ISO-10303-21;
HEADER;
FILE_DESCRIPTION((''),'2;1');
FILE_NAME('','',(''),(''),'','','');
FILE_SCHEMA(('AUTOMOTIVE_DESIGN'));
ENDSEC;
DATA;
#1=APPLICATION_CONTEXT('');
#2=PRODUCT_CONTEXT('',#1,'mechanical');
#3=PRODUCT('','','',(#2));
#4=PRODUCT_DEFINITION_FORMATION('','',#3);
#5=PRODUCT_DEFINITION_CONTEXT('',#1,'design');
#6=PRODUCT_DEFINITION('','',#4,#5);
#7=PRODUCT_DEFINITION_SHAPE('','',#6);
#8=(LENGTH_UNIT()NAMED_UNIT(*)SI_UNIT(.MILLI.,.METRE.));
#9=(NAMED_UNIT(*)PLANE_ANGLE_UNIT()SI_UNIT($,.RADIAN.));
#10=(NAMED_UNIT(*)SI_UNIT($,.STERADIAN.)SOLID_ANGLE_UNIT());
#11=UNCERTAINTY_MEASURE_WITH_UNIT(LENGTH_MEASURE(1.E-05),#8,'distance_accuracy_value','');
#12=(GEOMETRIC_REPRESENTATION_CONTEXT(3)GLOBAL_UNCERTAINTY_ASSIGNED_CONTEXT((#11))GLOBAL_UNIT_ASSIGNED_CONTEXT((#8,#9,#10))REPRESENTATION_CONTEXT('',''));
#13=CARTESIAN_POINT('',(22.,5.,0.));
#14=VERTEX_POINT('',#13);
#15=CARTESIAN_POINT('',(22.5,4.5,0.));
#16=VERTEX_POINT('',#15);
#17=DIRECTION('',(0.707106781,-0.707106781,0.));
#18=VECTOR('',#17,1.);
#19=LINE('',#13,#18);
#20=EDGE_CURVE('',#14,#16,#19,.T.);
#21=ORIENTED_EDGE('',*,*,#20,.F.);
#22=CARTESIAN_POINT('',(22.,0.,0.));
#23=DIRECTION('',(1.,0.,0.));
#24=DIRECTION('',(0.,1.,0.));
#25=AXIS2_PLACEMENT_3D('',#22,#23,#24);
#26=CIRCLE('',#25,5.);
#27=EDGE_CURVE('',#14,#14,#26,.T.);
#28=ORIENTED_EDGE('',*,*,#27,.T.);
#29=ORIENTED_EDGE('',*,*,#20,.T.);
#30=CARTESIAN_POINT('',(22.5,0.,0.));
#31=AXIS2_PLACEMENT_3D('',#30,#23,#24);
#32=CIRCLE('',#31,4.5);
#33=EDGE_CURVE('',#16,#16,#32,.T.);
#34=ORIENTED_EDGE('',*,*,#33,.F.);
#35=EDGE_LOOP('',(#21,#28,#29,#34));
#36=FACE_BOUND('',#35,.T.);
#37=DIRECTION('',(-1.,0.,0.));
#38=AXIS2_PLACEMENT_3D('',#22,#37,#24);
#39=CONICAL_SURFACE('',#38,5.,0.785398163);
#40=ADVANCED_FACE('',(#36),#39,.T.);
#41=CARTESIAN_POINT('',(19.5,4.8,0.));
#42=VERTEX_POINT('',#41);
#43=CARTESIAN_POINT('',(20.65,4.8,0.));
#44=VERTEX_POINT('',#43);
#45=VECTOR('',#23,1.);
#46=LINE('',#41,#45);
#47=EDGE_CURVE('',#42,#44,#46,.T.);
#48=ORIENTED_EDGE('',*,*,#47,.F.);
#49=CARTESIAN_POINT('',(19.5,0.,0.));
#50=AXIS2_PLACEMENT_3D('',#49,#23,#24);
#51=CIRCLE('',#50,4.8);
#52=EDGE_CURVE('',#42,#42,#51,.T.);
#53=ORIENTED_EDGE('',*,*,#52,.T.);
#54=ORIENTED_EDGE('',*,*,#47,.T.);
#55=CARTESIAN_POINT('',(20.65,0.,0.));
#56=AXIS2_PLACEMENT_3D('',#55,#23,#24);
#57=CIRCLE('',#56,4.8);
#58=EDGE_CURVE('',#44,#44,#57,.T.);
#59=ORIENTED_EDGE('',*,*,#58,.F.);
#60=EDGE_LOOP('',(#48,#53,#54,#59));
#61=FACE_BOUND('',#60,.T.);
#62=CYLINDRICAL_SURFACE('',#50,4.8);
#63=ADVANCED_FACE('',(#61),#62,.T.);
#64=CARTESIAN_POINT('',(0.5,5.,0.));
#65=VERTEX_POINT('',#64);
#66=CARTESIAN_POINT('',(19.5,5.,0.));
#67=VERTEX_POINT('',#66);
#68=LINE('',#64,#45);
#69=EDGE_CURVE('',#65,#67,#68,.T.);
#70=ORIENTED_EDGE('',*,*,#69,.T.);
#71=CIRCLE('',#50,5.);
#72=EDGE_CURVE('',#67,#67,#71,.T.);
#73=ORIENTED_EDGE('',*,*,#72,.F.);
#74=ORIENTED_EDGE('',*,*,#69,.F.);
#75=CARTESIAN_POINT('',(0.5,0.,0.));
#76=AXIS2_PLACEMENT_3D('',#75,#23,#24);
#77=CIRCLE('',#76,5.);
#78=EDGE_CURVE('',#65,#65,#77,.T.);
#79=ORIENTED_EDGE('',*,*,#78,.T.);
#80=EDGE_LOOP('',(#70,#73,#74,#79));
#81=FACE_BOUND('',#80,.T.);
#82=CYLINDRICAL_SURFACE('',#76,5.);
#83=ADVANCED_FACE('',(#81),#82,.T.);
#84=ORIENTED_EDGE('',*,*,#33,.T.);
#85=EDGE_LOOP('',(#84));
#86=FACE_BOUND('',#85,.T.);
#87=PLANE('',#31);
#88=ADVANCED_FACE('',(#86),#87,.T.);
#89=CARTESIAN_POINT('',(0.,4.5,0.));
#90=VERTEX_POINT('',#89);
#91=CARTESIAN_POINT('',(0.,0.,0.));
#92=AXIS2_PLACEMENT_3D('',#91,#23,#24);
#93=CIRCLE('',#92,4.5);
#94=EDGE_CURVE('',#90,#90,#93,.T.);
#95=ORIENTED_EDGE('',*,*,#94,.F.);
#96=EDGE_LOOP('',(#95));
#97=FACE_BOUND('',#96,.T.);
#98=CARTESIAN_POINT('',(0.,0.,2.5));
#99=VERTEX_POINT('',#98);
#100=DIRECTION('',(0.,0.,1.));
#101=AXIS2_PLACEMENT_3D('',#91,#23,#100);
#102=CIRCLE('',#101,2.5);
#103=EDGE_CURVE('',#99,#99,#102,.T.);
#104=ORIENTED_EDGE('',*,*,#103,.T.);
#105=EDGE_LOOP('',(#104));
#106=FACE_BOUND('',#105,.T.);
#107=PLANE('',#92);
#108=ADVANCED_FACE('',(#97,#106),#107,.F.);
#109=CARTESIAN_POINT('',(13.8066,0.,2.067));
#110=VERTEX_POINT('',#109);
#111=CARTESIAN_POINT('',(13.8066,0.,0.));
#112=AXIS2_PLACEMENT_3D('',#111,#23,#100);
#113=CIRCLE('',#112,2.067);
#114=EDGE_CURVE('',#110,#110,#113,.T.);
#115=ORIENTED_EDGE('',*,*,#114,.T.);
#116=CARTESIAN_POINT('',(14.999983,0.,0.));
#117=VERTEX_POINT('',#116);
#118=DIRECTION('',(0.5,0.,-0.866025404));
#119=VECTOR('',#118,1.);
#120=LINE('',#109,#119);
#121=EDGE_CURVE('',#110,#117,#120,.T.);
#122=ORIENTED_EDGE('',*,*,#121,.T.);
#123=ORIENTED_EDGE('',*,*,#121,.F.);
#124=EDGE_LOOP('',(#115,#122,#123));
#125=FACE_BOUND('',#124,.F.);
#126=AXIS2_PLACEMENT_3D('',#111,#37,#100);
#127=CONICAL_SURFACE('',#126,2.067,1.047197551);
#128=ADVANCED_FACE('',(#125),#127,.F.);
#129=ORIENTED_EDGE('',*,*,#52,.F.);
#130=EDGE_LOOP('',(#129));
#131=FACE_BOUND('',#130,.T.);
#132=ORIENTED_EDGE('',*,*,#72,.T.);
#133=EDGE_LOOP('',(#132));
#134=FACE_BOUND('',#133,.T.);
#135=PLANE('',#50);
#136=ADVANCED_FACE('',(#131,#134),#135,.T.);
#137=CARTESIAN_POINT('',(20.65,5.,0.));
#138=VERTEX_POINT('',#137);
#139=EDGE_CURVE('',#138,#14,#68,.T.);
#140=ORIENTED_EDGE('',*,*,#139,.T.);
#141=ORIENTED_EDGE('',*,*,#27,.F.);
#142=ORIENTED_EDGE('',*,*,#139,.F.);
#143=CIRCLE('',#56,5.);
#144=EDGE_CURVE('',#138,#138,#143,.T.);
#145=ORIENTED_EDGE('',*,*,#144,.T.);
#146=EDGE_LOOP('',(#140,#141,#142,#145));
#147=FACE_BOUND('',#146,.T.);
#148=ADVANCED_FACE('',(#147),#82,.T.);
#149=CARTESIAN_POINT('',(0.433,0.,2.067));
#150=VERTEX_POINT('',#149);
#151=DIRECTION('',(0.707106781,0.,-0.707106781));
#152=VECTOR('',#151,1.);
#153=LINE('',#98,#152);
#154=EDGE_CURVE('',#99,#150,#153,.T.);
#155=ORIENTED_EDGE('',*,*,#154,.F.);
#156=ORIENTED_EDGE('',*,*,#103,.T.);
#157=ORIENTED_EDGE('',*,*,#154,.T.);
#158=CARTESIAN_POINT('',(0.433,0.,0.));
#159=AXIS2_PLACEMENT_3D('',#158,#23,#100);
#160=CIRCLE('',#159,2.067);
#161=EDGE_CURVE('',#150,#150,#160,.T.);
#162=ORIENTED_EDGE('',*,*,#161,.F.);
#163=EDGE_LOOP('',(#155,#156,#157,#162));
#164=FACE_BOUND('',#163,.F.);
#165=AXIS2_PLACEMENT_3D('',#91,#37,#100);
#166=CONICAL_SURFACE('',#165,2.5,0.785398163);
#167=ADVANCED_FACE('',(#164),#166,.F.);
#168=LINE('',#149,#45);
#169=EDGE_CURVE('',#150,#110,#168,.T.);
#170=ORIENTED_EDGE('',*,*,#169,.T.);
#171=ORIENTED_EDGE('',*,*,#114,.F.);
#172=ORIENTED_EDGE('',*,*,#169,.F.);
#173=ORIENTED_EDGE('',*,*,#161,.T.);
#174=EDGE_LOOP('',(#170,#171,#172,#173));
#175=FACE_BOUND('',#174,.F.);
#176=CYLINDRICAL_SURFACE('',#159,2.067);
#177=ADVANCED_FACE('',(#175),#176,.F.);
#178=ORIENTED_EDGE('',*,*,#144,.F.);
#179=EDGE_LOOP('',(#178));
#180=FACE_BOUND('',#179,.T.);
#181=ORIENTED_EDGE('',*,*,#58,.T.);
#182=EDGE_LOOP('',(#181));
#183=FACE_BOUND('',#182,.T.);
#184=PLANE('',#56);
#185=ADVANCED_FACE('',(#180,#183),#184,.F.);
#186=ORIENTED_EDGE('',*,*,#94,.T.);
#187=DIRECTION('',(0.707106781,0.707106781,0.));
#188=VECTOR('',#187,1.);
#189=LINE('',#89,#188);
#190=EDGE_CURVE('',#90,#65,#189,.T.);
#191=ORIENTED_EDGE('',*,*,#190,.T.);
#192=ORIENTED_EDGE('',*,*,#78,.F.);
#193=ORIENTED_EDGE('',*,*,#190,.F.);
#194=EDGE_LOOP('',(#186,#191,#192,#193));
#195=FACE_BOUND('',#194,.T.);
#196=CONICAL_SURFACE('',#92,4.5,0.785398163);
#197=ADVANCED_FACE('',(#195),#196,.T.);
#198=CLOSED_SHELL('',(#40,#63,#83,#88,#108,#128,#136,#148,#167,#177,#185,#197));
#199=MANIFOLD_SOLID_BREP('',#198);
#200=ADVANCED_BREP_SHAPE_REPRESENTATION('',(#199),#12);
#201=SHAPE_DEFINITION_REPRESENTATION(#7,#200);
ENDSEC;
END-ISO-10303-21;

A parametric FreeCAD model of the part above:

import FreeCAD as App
import Part
import Sketcher
from FreeCAD import Vector

doc = App.newDocument("Part")
body = doc.addObject("PartDesign::Body", "Body")

# Sketch on XY plane
sketch1 = body.newObject("Sketcher::SketchObject", "Sketch")
sketch1.AttachmentSupport = (doc.getObject("XY_Plane"), [""])
sketch1.MapMode = "FlatFace"
sketch1.addGeometry(Part.LineSegment(Vector(0, 0, 0), Vector(22.5, 0, 0)), False)
sketch1.addGeometry(Part.LineSegment(Vector(22.5, 0, 0), Vector(22.5, 4.5, 0)), False)
sketch1.addGeometry(Part.LineSegment(Vector(22.5, 4.5, 0), Vector(22, 5, 0)), False)
sketch1.addGeometry(Part.LineSegment(Vector(22, 5, 0), Vector(0.5, 5, 0)), False)
sketch1.addGeometry(Part.LineSegment(Vector(0.5, 5, 0), Vector(0, 4.5, 0)), False)
sketch1.addGeometry(Part.LineSegment(Vector(0, 4.5, 0), Vector(0, 0, 0)), False)
sketch1.addConstraint(Sketcher.Constraint("Coincident", 0, 2, 1, 1))
sketch1.addConstraint(Sketcher.Constraint("Coincident", 1, 2, 2, 1))
sketch1.addConstraint(Sketcher.Constraint("Coincident", 2, 2, 3, 1))
sketch1.addConstraint(Sketcher.Constraint("Coincident", 3, 2, 4, 1))
sketch1.addConstraint(Sketcher.Constraint("Coincident", 4, 2, 5, 1))
sketch1.addConstraint(Sketcher.Constraint("Coincident", 5, 2, 0, 1))
sketch1.addConstraint(Sketcher.Constraint("Horizontal", 0))
sketch1.addConstraint(Sketcher.Constraint("Vertical", 1))
sketch1.addConstraint(Sketcher.Constraint("Horizontal", 3))
sketch1.addConstraint(Sketcher.Constraint("Vertical", 5))
sketch1.addConstraint(Sketcher.Constraint("Coincident", 5, 2, -1, 1))
sketch1.addConstraint(Sketcher.Constraint("Perpendicular", 2, 4))
sketch1.addConstraint(Sketcher.Constraint("Horizontal", 1, 2, 4, 2))
sketch1.addConstraint(Sketcher.Constraint("Equal", 2, 4))
sketch1.addConstraint(Sketcher.Constraint("DistanceX", 0, 1, 0, 2, 22.5))
sketch1.addConstraint(Sketcher.Constraint("DistanceX", 3, 2, 3, 1, 21.5))
sketch1.addConstraint(Sketcher.Constraint("DistanceY", 1, 1, 1, 2, 4.5))
revolution = body.newObject("PartDesign::Revolution", "Revolution")
revolution.Profile = sketch1
revolution.ReferenceAxis = (sketch1, ["H_Axis"])
revolution.Angle = 360

# Sketch on YZ plane
sketch2 = body.newObject("Sketcher::SketchObject", "Sketch001")
sketch2.AttachmentSupport = (doc.getObject("YZ_Plane"), [""])
sketch2.MapMode = "FlatFace"
sketch2.addGeometry(Part.Circle(Vector(0, 0, 0), Vector(0, 0, 1), 2.1), False)
sketch2.addConstraint(Sketcher.Constraint("Coincident", 0, 3, -1, 1))
sketch2.addConstraint(Sketcher.Constraint("Diameter", 0, 4.134))
doc.recompute()
hole = body.newObject("PartDesign::Hole", "Hole")
hole.Profile = sketch2
hole.ThreadType = "None"
hole.Diameter = 4.134
hole.DepthType = "Dimension"
hole.Depth = 13.8066
hole.DrillPoint = "Angled"
hole.DrillPointAngle = 120
hole.HoleCutType = "Countersink"
hole.HoleCutDiameter = 5
hole.HoleCutCountersinkAngle = 90
hole.Reversed = True

# Sketch on XY plane
sketch3 = body.newObject("Sketcher::SketchObject", "Sketch002")
sketch3.AttachmentSupport = (doc.getObject("XY_Plane"), [""])
sketch3.MapMode = "FlatFace"
sketch3.addGeometry(Part.LineSegment(Vector(20.6, 9.6, 0), Vector(19.5, 9.6, 0)), False)
sketch3.addGeometry(Part.LineSegment(Vector(19.5, 9.6, 0), Vector(19.5, 4.8, 0)), False)
sketch3.addGeometry(Part.LineSegment(Vector(19.5, 4.8, 0), Vector(20.6, 4.8, 0)), False)
sketch3.addGeometry(Part.LineSegment(Vector(20.6, 4.8, 0), Vector(20.6, 9.6, 0)), False)
sketch3.addConstraint(Sketcher.Constraint("Coincident", 0, 2, 1, 1))
sketch3.addConstraint(Sketcher.Constraint("Coincident", 1, 2, 2, 1))
sketch3.addConstraint(Sketcher.Constraint("Coincident", 2, 2, 3, 1))
sketch3.addConstraint(Sketcher.Constraint("Coincident", 3, 2, 0, 1))
sketch3.addConstraint(Sketcher.Constraint("Horizontal", 0))
sketch3.addConstraint(Sketcher.Constraint("Vertical", 1))
sketch3.addConstraint(Sketcher.Constraint("Horizontal", 2))
sketch3.addConstraint(Sketcher.Constraint("Vertical", 3))
sketch3.addConstraint(Sketcher.Constraint("DistanceY", 1, 2, 1, 1, 4.8))
sketch3.addConstraint(Sketcher.Constraint("DistanceX", 0, 2, 0, 1, 1.15))
sketch3.addConstraint(Sketcher.Constraint("DistanceX", -1, 1, 0, 2, 19.5))
sketch3.addConstraint(Sketcher.Constraint("DistanceY", -1, 1, 0, 2, 9.6))
groove = body.newObject("PartDesign::Groove", "Groove")
groove.Profile = sketch3
groove.ReferenceAxis = (sketch3, ["H_Axis"])
groove.Angle = 360

doc.recompute()
